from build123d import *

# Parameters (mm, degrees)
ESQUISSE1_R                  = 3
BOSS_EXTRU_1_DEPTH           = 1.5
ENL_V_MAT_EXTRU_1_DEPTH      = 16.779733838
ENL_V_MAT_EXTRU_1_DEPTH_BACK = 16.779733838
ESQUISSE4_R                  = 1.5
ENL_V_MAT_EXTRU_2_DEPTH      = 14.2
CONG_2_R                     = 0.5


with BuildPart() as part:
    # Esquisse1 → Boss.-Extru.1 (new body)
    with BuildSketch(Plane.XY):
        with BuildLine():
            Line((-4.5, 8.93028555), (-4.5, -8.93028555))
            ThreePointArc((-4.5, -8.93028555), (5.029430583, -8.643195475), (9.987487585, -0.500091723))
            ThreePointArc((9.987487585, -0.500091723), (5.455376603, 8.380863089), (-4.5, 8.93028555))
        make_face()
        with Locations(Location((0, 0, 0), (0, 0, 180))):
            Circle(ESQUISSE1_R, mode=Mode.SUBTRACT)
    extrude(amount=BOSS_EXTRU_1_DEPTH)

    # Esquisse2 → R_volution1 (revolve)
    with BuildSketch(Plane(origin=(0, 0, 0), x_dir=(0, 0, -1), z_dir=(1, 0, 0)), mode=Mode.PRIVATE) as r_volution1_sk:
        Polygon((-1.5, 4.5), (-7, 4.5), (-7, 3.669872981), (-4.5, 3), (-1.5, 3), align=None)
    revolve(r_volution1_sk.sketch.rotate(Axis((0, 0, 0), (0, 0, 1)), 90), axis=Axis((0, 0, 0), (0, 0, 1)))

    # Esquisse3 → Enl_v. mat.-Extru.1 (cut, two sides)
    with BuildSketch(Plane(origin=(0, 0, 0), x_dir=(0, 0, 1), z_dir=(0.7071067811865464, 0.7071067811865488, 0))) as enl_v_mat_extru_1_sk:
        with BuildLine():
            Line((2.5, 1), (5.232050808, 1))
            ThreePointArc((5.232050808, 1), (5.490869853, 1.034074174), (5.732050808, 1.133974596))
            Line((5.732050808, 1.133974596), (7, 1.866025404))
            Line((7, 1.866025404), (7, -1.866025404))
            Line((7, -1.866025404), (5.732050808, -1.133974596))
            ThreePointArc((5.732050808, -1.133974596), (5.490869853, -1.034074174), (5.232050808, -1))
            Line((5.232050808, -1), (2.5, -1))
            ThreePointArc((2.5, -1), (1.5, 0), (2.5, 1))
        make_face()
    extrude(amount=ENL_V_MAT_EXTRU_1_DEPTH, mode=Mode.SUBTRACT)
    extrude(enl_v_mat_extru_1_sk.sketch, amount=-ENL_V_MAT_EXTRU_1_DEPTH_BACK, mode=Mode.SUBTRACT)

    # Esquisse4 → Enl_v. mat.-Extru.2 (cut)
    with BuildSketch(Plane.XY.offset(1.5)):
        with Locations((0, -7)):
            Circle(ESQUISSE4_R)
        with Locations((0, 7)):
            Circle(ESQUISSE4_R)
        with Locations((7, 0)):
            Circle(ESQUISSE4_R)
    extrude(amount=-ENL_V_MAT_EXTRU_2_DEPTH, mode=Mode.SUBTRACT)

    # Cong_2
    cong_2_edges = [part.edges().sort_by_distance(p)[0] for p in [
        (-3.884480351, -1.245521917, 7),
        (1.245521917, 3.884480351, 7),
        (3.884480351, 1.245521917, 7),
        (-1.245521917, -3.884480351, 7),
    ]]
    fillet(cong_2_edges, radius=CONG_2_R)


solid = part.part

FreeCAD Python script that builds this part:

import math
import FreeCAD as App
import Part
import Sketcher
Q = App.Units.Quantity


def edges_at(feature, points):
    """Names of the edges that pass closest to the given points."""
    edges = feature.Shape.Edges
    near = lambda p: min(range(len(edges)), key=lambda i: edges[i].distToShape(Part.Vertex(*p))[0])
    return sorted({f"Edge{near(p) + 1}" for p in points})


def add_polygon(sketch, points):
    """Adds a closed chain of lines whose ends are joined by coincident constraints."""
    first, n = sketch.GeometryCount, len(points)
    for a, b in zip(points, points[1:] + points[:1]):
        sketch.addGeometry(Part.LineSegment(App.Vector(*a, 0), App.Vector(*b, 0)), False)
    for i in range(n):
        sketch.addConstraint(Sketcher.Constraint("Coincident", first + i, 2, first + (i + 1) % n, 1))

doc = App.newDocument("Part")
body = doc.addObject("PartDesign::Body", "Body")

# Sketch on XY plane
sketch1 = body.newObject("Sketcher::SketchObject", "Sketch")
sketch1.AttachmentSupport = (doc.getObject("XY_Plane"), [""])
sketch1.MapMode = "FlatFace"
sketch1.addGeometry([
    Part.LineSegment(App.Vector(-4.5, 8.9, 0), App.Vector(-4.5, -8.9, 0)),
    Part.ArcOfCircle(Part.Circle(App.Vector(0, 0, 0), App.Vector(0, 0, 1), 10), math.radians(-117), math.radians(-3)),
    Part.ArcOfCircle(Part.Circle(App.Vector(0, 0, 0), App.Vector(0, 0, 1), 10), math.radians(-3), math.radians(117)),
    Part.Circle(App.Vector(0, 0, 0), App.Vector(0, 0, 1), 3),
], False)
sketch1.addConstraint([
    Sketcher.Constraint("Coincident", 0, 2, 1, 1),
    Sketcher.Constraint("Tangent", 1, 2, 2, 1),
    Sketcher.Constraint("Coincident", 2, 2, 0, 1),
    Sketcher.Constraint("Vertical", 0),
    Sketcher.Constraint("Coincident", 1, 3, -1, 1),
    Sketcher.Constraint("Coincident", 3, 3, -1, 1),
    Sketcher.Constraint("Equal", 1, 2),
    Sketcher.Constraint("Diameter", 3, 6.0),
    Sketcher.Constraint("Radius", 1, 10.0),
    Sketcher.Constraint("DistanceX", 0, 2, -1, 1, 4.5),
    Sketcher.Constraint("DistanceY", 1, 2, -1, 1, 0.500092),
])
pad1 = body.newObject("PartDesign::Pad", "Pad")
pad1.Profile = sketch1
pad1.Length = 1.5

# Sketch on YZ plane
sketch2 = body.newObject("Sketcher::SketchObject", "Sketch001")
sketch2.AttachmentSupport = (doc.getObject("YZ_Plane"), [""])
sketch2.MapMode = "FlatFace"
add_polygon(sketch2, [(4.5, 1.5), (4.5, 7), (3.7, 7), (3, 4.5), (3, 1.5)])  # lines 0-4
sketch2.addConstraint([
    Sketcher.Constraint("Vertical", 0),
    Sketcher.Constraint("Horizontal", 1),
    Sketcher.Constraint("Vertical", 3),
    Sketcher.Constraint("Horizontal", 4),
    Sketcher.Constraint("DistanceY", 3, 2, 3, 1, 3.0),
    Sketcher.Constraint("Angle", 2, Q("-105 deg")),
    Sketcher.Constraint("DistanceX", 4, 1, 4, 2, 1.5),
    Sketcher.Constraint("DistanceY", 0, 1, 0, 2, 5.5),
    Sketcher.Constraint("DistanceY", -1, 1, 0, 2, 7.0),
    Sketcher.Constraint("DistanceX", -1, 1, 2, 2, 3.0),
])
revolution = body.newObject("PartDesign::Revolution", "Revolution")
revolution.Profile = sketch2
revolution.ReferenceAxis = (sketch2, ["V_Axis"])
revolution.Angle = 360

# Sketch on an angled plane
sketch3 = body.newObject("Sketcher::SketchObject", "Sketch002")
sketch3.Placement = App.Placement(App.Vector(0, 0, 0), App.Rotation(App.Vector(0, 0, 1), App.Vector(0.707106781, -0.707106781, 0), App.Vector(0.707106781, 0.707106781, 0), "ZXY"))
sketch3.addGeometry([
    Part.LineSegment(App.Vector(5.2, 1, 0), App.Vector(2.5, 1, 0)),  # 0
    Part.ArcOfCircle(Part.Circle(App.Vector(2.5, 0, 0), App.Vector(0, 0, 1), 1), math.radians(90), math.radians(270)),  # 1
    Part.LineSegment(App.Vector(2.5, -1, 0), App.Vector(5.2, -1, 0)),  # 2
    Part.ArcOfCircle(Part.Circle(App.Vector(5.2, -2, 0), App.Vector(0, 0, 1), 1), math.radians(60), math.radians(90)),  # 3
    Part.LineSegment(App.Vector(5.7, -1.1, 0), App.Vector(7, -1.9, 0)),  # 4
    Part.LineSegment(App.Vector(7, -1.9, 0), App.Vector(7, 1.9, 0)),  # 5
    Part.LineSegment(App.Vector(7, 1.9, 0), App.Vector(5.7, 1.1, 0)),  # 6
    Part.ArcOfCircle(Part.Circle(App.Vector(5.2, 2, 0), App.Vector(0, 0, 1), 1), math.radians(-90), math.radians(-60)),  # 7
], False)
sketch3.addConstraint([
    Sketcher.Constraint("Tangent", 0, 2, 1, 1),
    Sketcher.Constraint("Tangent", 1, 2, 2, 1),
    Sketcher.Constraint("Tangent", 2, 2, 3, 2),
    Sketcher.Constraint("Tangent", 3, 1, 4, 1),
    Sketcher.Constraint("Coincident", 4, 2, 5, 1),
    Sketcher.Constraint("Coincident", 5, 2, 6, 1),
    Sketcher.Constraint("Tangent", 6, 2, 7, 2),
    Sketcher.Constraint("Tangent", 7, 1, 0, 1),
    Sketcher.Constraint("Horizontal", 0),
    Sketcher.Constraint("Horizontal", 2),
    Sketcher.Constraint("Vertical", 5),
    Sketcher.Constraint("Equal", 1, 3),
    Sketcher.Constraint("Equal", 3, 7),
    Sketcher.Constraint("Symmetric", 3, 3, 7, 3, -1),
    Sketcher.Constraint("Vertical", 3, 1, 6, 2),
    Sketcher.Constraint("Radius", 1, 1.0),
    Sketcher.Constraint("Angle", 4, Q("-30 deg")),
    Sketcher.Constraint("DistanceX", -1, 1, 4, 2, 7.0),
    Sketcher.Constraint("DistanceY", 3, 1, 5, 2, 3.0),
    Sketcher.Constraint("DistanceX", -1, 1, 1, 3, 2.5),
])
pocket1 = body.newObject("PartDesign::Pocket", "Pocket")
pocket1.Profile = sketch3
pocket1.Type = "ThroughAll"
pocket1.Midplane = True

# Sketch on XY plane
sketch4 = body.newObject("Sketcher::SketchObject", "Sketch003")
sketch4.AttachmentSupport = (doc.getObject("XY_Plane"), [""])
sketch4.MapMode = "FlatFace"
sketch4.AttachmentOffset = App.Placement(App.Vector(0, 0, 1.5), App.Rotation())
sketch4.addGeometry([
    Part.Circle(App.Vector(0, -7, 0), App.Vector(0, 0, 1), 1.5),
    Part.Circle(App.Vector(0, 7, 0), App.Vector(0, 0, 1), 1.5),
    Part.Circle(App.Vector(7, 0, 0), App.Vector(0, 0, 1), 1.5),
], False)
sketch4.addConstraint([
    Sketcher.Constraint("Equal", 0, 1),
    Sketcher.Constraint("Equal", 1, 2),
    Sketcher.Constraint("Symmetric", 0, 3, 1, 3, -1, 1),
    Sketcher.Constraint("PointOnObject", 0, 3, -2),
    Sketcher.Constraint("PointOnObject", 2, 3, -1),
    Sketcher.Constraint("Diameter", 0, 3.0),
    Sketcher.Constraint("DistanceY", 0, 3, -1, 1, 7.0),
    Sketcher.Constraint("DistanceX", -1, 1, 2, 3, 7.0),
])
pocket2 = body.newObject("PartDesign::Pocket", "Pocket001")
pocket2.Profile = sketch4
pocket2.Length = 14.2
doc.recompute()

fillet = body.newObject("PartDesign::Fillet", "Fillet")
fillet.Base = (pocket2, edges_at(pocket2, [
    (-3.884, -1.246, 7),
    (1.246, 3.884, 7),
    (3.884, 1.246, 7),
    (-1.246, -3.884, 7),
]))
fillet.Radius = 0.5

doc.recompute()
